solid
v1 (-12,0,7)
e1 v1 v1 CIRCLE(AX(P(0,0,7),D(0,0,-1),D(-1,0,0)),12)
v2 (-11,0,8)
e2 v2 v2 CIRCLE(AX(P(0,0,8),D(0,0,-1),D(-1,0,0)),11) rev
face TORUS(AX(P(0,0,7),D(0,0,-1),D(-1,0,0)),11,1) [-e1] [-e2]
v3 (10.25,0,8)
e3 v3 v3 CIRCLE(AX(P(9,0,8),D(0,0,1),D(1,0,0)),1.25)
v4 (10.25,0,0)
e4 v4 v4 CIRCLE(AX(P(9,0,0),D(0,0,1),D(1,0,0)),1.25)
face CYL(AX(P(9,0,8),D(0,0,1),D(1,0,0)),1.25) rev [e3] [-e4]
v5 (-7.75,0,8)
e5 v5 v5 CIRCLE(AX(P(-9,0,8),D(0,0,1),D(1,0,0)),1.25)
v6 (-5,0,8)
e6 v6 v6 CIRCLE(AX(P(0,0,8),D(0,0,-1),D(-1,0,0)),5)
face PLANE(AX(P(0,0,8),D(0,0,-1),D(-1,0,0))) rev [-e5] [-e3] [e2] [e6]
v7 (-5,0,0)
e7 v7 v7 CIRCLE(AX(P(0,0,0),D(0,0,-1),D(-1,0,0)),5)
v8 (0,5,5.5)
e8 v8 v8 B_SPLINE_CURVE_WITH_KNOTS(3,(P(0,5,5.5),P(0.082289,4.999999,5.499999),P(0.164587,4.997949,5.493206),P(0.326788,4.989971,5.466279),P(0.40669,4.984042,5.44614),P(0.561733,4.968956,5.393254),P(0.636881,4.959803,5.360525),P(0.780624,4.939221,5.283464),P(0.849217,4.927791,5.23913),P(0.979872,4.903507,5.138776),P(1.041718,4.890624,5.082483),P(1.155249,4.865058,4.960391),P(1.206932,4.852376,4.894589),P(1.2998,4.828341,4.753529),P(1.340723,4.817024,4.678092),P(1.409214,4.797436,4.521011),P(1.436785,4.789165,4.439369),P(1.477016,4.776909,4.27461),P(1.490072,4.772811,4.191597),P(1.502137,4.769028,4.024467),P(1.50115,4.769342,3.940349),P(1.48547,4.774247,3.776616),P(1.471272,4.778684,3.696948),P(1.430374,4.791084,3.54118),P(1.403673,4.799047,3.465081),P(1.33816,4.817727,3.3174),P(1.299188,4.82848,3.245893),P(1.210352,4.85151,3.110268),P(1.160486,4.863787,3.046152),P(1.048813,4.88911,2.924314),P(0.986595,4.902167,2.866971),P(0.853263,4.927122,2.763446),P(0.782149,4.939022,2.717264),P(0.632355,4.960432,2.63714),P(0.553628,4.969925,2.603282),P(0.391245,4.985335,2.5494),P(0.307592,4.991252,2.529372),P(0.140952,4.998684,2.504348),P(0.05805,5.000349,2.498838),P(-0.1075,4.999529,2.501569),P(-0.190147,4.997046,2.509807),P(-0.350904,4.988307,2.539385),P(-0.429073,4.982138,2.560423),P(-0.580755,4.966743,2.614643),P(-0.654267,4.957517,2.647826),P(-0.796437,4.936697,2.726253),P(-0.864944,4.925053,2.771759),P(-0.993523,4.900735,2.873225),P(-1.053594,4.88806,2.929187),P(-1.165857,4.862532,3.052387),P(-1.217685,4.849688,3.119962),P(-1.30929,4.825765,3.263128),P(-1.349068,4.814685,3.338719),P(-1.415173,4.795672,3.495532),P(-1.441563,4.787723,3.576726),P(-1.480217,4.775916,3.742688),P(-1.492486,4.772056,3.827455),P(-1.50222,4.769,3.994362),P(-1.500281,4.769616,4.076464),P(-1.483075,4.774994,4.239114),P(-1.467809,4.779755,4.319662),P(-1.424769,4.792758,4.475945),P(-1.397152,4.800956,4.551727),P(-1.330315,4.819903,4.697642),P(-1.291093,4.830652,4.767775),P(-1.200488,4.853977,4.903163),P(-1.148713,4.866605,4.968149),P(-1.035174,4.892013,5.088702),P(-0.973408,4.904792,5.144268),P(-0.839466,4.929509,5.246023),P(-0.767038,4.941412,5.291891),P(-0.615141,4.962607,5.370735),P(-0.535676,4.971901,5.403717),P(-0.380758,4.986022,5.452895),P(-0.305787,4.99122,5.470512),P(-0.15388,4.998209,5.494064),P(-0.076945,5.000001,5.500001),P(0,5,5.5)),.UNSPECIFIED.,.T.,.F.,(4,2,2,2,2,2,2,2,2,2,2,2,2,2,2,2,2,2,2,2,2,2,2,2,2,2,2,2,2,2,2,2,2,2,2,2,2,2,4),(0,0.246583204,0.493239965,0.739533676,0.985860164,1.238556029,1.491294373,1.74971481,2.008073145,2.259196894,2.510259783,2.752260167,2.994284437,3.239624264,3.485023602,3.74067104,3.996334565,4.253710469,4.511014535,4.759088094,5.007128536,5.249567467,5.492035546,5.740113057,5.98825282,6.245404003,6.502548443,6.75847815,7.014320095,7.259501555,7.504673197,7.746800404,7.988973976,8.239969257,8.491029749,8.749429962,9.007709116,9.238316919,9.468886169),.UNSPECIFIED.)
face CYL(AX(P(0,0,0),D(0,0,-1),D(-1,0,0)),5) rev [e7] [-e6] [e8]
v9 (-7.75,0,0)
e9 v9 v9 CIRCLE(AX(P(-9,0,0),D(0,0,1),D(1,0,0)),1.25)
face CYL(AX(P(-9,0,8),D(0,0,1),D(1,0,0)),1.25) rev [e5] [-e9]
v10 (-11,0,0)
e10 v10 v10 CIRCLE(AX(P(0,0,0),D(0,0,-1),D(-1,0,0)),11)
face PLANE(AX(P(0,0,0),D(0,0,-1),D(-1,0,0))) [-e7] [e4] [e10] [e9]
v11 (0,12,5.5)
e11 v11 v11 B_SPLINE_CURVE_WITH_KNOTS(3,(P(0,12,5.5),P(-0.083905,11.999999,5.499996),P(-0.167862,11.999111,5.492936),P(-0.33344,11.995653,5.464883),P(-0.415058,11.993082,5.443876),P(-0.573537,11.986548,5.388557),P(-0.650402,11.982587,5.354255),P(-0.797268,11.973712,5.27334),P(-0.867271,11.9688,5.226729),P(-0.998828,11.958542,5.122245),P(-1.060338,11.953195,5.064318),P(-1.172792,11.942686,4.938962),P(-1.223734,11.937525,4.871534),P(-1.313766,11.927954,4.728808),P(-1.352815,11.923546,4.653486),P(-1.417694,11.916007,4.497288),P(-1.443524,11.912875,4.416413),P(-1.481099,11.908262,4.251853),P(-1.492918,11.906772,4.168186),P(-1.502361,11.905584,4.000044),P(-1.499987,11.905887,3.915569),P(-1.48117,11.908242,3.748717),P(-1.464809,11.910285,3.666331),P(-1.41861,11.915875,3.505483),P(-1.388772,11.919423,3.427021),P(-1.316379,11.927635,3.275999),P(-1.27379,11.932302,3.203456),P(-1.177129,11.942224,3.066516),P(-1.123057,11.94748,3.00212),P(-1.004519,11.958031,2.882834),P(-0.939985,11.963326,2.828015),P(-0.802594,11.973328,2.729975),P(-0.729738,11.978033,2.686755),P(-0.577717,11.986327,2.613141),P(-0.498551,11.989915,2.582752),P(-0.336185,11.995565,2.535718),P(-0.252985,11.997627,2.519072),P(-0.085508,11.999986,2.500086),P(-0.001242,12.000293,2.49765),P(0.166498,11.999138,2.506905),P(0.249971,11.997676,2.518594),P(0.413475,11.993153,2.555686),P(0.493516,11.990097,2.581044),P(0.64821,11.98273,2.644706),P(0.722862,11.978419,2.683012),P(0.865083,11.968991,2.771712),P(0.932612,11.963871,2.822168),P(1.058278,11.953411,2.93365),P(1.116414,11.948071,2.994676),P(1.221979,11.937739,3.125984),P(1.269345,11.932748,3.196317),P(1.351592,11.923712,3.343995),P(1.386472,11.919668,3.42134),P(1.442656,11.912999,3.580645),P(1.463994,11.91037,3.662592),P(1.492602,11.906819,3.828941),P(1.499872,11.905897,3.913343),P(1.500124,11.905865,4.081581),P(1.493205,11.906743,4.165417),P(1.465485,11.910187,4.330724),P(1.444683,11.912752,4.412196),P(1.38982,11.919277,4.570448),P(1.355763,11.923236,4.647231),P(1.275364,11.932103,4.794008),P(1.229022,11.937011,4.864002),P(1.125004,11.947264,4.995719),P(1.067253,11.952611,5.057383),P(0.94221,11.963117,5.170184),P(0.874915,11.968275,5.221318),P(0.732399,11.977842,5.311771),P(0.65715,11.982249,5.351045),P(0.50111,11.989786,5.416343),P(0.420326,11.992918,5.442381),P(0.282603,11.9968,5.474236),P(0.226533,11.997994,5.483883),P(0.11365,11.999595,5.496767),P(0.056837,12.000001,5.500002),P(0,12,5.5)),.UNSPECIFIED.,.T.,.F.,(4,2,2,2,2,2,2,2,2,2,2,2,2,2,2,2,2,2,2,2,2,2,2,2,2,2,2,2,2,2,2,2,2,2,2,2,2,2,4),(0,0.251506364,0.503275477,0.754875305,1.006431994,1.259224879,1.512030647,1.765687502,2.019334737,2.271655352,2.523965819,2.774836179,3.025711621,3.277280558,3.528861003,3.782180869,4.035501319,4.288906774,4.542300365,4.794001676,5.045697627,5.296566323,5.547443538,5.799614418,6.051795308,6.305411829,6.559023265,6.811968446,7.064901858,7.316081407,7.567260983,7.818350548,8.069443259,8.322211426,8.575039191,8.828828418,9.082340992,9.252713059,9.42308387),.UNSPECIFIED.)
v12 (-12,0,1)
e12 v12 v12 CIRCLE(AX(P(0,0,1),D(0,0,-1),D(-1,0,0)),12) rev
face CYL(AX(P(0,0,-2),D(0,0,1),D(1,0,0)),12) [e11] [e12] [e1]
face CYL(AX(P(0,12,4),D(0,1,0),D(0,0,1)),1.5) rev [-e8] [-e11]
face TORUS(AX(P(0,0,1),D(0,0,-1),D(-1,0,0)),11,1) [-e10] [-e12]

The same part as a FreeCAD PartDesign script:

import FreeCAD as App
import Part
import Sketcher
from FreeCAD import Vector


def edges_at(feature, points):
    """Names of the edges that pass closest to the given points."""
    edges = feature.Shape.Edges
    near = lambda p: min(range(len(edges)), key=lambda i: edges[i].distToShape(Part.Vertex(*p))[0])
    return sorted({f"Edge{near(p) + 1}" for p in points})

doc = App.newDocument("Part")
body = doc.addObject("PartDesign::Body", "Body")

# Sketch on XY plane
sketch1 = body.newObject("Sketcher::SketchObject", "Sketch")
sketch1.AttachmentSupport = (doc.getObject("XY_Plane"), [""])
sketch1.MapMode = "FlatFace"
sketch1.addGeometry([
    Part.LineSegment(Vector(-12, 12, 0), Vector(-12, -12, 0)),
    Part.LineSegment(Vector(-12, -12, 0), Vector(12, -12, 0)),
    Part.LineSegment(Vector(12, -12, 0), Vector(12, 12, 0)),
    Part.LineSegment(Vector(12, 12, 0), Vector(-12, 12, 0)),
], False)
sketch1.addConstraint([
    Sketcher.Constraint("Coincident", 0, 2, 1, 1),
    Sketcher.Constraint("Coincident", 1, 2, 2, 1),
    Sketcher.Constraint("Coincident", 2, 2, 3, 1),
    Sketcher.Constraint("Coincident", 3, 2, 0, 1),
    Sketcher.Constraint("Vertical", 0),
    Sketcher.Constraint("Horizontal", 1),
    Sketcher.Constraint("Vertical", 2),
    Sketcher.Constraint("Horizontal", 3),
    Sketcher.Constraint("Symmetric", 0, 2, 2, 2, -1, 1),
    Sketcher.Constraint("Equal", 3, 0),
    Sketcher.Constraint("DistanceX", 1, 1, 1, 2, 24.0),
])
pad1 = body.newObject("PartDesign::Pad", "Pad")
pad1.Profile = sketch1
pad1.Length = 8

# Sketch on XY plane
sketch2 = body.newObject("Sketcher::SketchObject", "Sketch001")
sketch2.AttachmentSupport = (doc.getObject("XY_Plane"), [""])
sketch2.MapMode = "FlatFace"
sketch2.AttachmentOffset = App.Placement(Vector(0, 0, 8), App.Rotation())
sketch2.addGeometry([
    Part.Circle(Vector(9, 0, 0), Vector(0, 0, 1), 1.25),
    Part.Circle(Vector(-9, 0, 0), Vector(0, 0, 1), 1.25),
], False)
sketch2.addConstraint([
    Sketcher.Constraint("Equal", 0, 1),
    Sketcher.Constraint("Symmetric", 0, 3, 1, 3, -1, 1),
    Sketcher.Constraint("PointOnObject", 0, 3, -1),
    Sketcher.Constraint("Diameter", 0, 2.5),
    Sketcher.Constraint("DistanceX", -1, 1, 0, 3, 9.0),
])
doc.recompute()
hole = body.newObject("PartDesign::Hole", "Hole")
hole.Profile = sketch2
hole.ThreadType = "None"
hole.Diameter = 2.5
hole.DepthType = "ThroughAll"

# Sketch on XY plane
sketch3 = body.newObject("Sketcher::SketchObject", "Sketch002")
sketch3.AttachmentSupport = (doc.getObject("XY_Plane"), [""])
sketch3.MapMode = "FlatFace"
sketch3.addGeometry(Part.Circle(Vector(0, 0, 0), Vector(0, 0, 1), 5), False)
sketch3.addConstraint([
    Sketcher.Constraint("Coincident", 0, 3, -1, 1),
    Sketcher.Constraint("Diameter", 0, 10.0),
])
doc.recompute()
hole2 = body.newObject("PartDesign::Hole", "Hole001")
hole2.Profile = sketch3
hole2.ThreadType = "None"
hole2.Diameter = 10
hole2.DepthType = "ThroughAll"
hole2.Reversed = True

# Sketch on XZ plane
sketch4 = body.newObject("Sketcher::SketchObject", "Sketch003")
sketch4.AttachmentSupport = (doc.getObject("XZ_Plane"), [""])
sketch4.MapMode = "FlatFace"
sketch4.AttachmentOffset = App.Placement(Vector(0, 0, -12), App.Rotation())
sketch4.addGeometry(Part.Circle(Vector(0, 4, 0), Vector(0, 0, 1), 1.5), False)
sketch4.addConstraint([
    Sketcher.Constraint("PointOnObject", 0, 3, -2),
    Sketcher.Constraint("Diameter", 0, 3.0),
    Sketcher.Constraint("DistanceY", -1, 1, 0, 3, 4.0),
])
pocket1 = body.newObject("PartDesign::Pocket", "Pocket")
pocket1.Profile = sketch4
pocket1.Type = "UpToFirst"
pocket1.Reversed = True

# Sketch on XY plane
sketch5 = body.newObject("Sketcher::SketchObject", "Sketch004")
sketch5.AttachmentSupport = (doc.getObject("XY_Plane"), [""])
sketch5.MapMode = "FlatFace"
sketch5.AttachmentOffset = App.Placement(Vector(0, 0, 8), App.Rotation())
sketch5.addGeometry([
    Part.Circle(Vector(0, 0, 0), Vector(0, 0, 1), 16.970563),
    Part.Circle(Vector(0, 0, 0), Vector(0, 0, 1), 12),
], False)
sketch5.addConstraint([
    Sketcher.Constraint("Coincident", 0, 3, -1, 1),
    Sketcher.Constraint("Coincident", 1, 3, -1, 1),
    Sketcher.Constraint("Diameter", 1, 24.0),
    Sketcher.Constraint("Diameter", 0, 33.941125),
])
pocket2 = body.newObject("PartDesign::Pocket", "Pocket001")
pocket2.Profile = sketch5
pocket2.Length = 10
doc.recompute()

fillet = body.newObject("PartDesign::Fillet", "Fillet")
fillet.Base = (pocket2, edges_at(pocket2, [(-12, 0, 0), (-12, 0, 8)]))
fillet.Radius = 1

doc.recompute()
